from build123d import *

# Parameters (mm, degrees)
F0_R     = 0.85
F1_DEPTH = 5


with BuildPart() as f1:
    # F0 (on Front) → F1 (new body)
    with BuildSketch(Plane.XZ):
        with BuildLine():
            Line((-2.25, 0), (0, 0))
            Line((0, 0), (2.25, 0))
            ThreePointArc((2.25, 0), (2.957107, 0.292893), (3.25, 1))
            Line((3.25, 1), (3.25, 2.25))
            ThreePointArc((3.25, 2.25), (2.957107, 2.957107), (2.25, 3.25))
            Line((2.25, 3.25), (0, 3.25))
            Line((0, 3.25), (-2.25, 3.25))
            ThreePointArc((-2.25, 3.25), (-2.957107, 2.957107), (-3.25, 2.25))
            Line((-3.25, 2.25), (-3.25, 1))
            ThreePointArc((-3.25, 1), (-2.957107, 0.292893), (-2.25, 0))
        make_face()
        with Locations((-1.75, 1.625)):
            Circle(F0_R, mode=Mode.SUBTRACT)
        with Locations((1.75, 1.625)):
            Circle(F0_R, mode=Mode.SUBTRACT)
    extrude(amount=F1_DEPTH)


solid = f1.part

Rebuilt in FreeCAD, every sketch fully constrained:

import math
import FreeCAD as App
import Part
import Sketcher

V = App.Vector
Q = App.Units.Quantity

doc = App.newDocument("Part")
body = doc.addObject("PartDesign::Body", "Body")

# Sketch on XZ plane
sketch1 = body.newObject("Sketcher::SketchObject", "Sketch")
sketch1.AttachmentSupport = (doc.getObject("XZ_Plane"), [""])
sketch1.MapMode = "FlatFace"
sketch1.addGeometry([
    Part.LineSegment(V(-2.25, 0, 0), V(2.25, 0, 0)),  # 0
    Part.ArcOfCircle(Part.Circle(V(2.250001, 0.999999, 0), V(0, 0, 1), 0.999999), math.radians(-90.000043), math.radians(0.000043)),  # 1
    Part.LineSegment(V(3.25, 1, 0), V(3.25, 2.25, 0)),  # 2
    Part.ArcOfCircle(Part.Circle(V(2.250001, 2.250001, 0), V(0, 0, 1), 0.999999), math.radians(-0.000043), math.radians(90.000043)),  # 3
    Part.LineSegment(V(2.25, 3.25, 0), V(-2.25, 3.25, 0)),  # 4
    Part.ArcOfCircle(Part.Circle(V(-2.250001, 2.250001, 0), V(0, 0, 1), 0.999999), math.radians(89.999957), math.radians(180.000043)),  # 5
    Part.LineSegment(V(-3.25, 2.25, 0), V(-3.25, 1, 0)),  # 6
    Part.ArcOfCircle(Part.Circle(V(-2.250001, 0.999999, 0), V(0, 0, 1), 0.999999), math.radians(179.999957), math.radians(270.000043)),  # 7
    Part.Circle(V(-1.75, 1.625, 0), V(0, 0, 1), 0.85),  # 8
    Part.Circle(V(1.75, 1.625, 0), V(0, 0, 1), 0.85),  # 9
], False)
sketch1.addConstraint([
    Sketcher.Constraint("Tangent", 0, 2, 1, 1),
    Sketcher.Constraint("Tangent", 1, 2, 2, 1),
    Sketcher.Constraint("Tangent", 2, 2, 3, 1),
    Sketcher.Constraint("Tangent", 3, 2, 4, 1),
    Sketcher.Constraint("Tangent", 4, 2, 5, 1),
    Sketcher.Constraint("Tangent", 5, 2, 6, 1),
    Sketcher.Constraint("Tangent", 6, 2, 7, 1),
    Sketcher.Constraint("Tangent", 7, 2, 0, 1),
    Sketcher.Constraint("Horizontal", 0),
    Sketcher.Constraint("Vertical", 2),
    Sketcher.Constraint("Horizontal", 4),
    Sketcher.Constraint("Vertical", 6),
    Sketcher.Constraint("Equal", 1, 3),
    Sketcher.Constraint("Equal", 3, 5),
    Sketcher.Constraint("Equal", 5, 7),
    Sketcher.Constraint("Equal", 8, 9),
    Sketcher.Constraint("Symmetric", 0, 2, 7, 2, -1, 1),
    Sketcher.Constraint("Symmetric", 8, 3, 9, 3, -2),
    Sketcher.Constraint("Radius", 1, Q("0.999999 mm")),
    Sketcher.Constraint("Diameter", 8, Q("1.7 mm")),
    Sketcher.Constraint("DistanceX", 0, 1, 0, 2, Q("4.5 mm")),
    Sketcher.Constraint("DistanceX", 8, 3, 1, 3, Q("4.000001 mm")),
    Sketcher.Constraint("DistanceY", 2, 1, 2, 2, Q("1.25 mm")),
    Sketcher.Constraint("DistanceY", -1, 1, 8, 3, Q("1.625 mm")),
])
pad1 = body.newObject("PartDesign::Pad", "Pad")
pad1.Profile = sketch1
pad1.Length = 5

doc.recompute()
